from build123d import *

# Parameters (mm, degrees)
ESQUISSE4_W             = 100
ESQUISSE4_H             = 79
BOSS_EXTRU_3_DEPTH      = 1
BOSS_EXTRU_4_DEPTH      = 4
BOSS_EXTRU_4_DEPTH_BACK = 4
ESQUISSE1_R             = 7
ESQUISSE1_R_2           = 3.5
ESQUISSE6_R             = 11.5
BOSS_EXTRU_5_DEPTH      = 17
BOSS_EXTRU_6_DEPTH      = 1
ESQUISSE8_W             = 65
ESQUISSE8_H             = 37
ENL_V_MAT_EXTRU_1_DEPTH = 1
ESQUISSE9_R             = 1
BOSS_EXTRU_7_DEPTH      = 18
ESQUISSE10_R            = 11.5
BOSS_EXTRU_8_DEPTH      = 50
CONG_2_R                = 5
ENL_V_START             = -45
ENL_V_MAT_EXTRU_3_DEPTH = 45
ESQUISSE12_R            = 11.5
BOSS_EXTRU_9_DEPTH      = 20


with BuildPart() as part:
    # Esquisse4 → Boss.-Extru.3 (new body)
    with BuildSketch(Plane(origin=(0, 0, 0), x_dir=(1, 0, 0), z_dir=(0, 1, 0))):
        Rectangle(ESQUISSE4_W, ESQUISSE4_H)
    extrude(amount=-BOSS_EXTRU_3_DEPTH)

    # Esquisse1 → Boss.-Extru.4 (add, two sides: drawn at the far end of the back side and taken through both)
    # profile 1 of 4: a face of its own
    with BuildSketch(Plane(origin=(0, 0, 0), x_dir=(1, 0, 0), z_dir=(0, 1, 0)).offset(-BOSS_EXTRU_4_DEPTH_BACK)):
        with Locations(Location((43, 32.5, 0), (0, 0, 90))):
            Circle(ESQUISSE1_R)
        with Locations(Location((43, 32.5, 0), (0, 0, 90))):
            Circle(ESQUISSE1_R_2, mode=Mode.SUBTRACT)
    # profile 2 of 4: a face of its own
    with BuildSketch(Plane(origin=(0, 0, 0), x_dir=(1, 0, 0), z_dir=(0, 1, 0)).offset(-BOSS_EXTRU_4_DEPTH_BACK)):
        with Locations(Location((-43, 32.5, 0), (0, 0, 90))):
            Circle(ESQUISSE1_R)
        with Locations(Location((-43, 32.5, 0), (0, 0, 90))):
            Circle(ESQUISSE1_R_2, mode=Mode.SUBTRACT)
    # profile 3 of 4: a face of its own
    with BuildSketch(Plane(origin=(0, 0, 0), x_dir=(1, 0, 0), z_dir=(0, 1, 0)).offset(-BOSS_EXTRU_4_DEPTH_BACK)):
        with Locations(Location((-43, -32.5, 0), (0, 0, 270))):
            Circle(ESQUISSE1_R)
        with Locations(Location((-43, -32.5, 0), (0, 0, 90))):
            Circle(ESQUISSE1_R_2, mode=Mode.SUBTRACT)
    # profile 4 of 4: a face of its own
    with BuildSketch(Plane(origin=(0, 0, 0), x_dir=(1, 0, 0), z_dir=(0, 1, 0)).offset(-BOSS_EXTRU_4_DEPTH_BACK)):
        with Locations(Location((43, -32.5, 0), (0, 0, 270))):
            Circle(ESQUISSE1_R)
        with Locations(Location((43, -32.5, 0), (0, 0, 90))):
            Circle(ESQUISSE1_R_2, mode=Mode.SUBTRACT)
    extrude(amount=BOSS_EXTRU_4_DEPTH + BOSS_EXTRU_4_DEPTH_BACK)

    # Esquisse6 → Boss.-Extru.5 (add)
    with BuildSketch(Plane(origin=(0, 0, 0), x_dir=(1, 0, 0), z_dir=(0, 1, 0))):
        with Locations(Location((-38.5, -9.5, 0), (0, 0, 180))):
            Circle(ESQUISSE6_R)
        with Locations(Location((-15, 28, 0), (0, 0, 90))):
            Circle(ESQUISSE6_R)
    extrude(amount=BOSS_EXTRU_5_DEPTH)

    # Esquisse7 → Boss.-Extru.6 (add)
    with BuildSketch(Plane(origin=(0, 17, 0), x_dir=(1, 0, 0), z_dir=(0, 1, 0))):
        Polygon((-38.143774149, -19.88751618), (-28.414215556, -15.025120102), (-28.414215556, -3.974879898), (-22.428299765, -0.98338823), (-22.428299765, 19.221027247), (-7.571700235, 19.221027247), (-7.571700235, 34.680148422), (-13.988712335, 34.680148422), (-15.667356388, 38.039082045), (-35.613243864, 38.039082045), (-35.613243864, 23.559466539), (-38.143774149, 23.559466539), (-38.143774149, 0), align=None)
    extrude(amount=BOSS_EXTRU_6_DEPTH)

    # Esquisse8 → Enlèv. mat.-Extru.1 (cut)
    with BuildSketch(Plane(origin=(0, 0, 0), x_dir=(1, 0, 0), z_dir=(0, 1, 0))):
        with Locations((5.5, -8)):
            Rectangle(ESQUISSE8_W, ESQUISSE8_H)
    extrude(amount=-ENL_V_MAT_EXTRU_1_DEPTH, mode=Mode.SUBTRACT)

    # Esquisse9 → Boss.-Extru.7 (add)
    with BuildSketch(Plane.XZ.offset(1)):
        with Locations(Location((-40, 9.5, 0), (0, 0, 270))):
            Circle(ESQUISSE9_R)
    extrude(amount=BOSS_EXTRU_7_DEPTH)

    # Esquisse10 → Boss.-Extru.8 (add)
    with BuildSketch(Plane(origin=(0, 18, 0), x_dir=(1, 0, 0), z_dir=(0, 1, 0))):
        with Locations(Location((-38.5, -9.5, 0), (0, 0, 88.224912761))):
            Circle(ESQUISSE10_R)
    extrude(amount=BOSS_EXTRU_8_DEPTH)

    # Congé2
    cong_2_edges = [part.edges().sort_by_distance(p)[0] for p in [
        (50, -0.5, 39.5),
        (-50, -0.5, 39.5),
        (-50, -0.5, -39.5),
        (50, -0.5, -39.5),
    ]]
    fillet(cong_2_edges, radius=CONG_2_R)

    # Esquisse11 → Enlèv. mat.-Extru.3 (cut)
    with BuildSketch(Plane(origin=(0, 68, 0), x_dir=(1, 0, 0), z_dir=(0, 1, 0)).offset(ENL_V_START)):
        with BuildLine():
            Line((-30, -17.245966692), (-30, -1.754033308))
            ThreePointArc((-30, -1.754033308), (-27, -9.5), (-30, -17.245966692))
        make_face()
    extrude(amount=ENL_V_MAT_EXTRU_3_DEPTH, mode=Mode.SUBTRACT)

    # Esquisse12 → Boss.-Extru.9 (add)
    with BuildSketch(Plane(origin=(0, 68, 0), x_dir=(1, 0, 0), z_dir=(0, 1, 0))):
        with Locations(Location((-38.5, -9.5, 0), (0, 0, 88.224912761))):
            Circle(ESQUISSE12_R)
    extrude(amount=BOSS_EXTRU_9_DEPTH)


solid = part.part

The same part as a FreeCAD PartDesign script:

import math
import FreeCAD as App
import Part
import Sketcher

V = App.Vector


def edges_at(feature, points):
    """Names of the edges that pass closest to the given points."""
    edges = feature.Shape.Edges
    near = lambda p: min(range(len(edges)), key=lambda i: edges[i].distToShape(Part.Vertex(*p))[0])
    return sorted({f"Edge{near(p) + 1}" for p in points})

doc = App.newDocument("Part")
params = doc.addObject("Spreadsheet::Sheet", "Params")
for row, (alias, value) in enumerate([
    ("sketch1_width", "100 mm"),
    ("sketch1_height", "79 mm"),
    ("pad1_length", "1 mm"),
    ("sketch2_diameter", "14 mm"),
    ("sketch2_diameter2", "7 mm"),
    ("pad2_length", "4 mm"),
    ("pad2_length2", "4 mm"),
    ("sketch3_diameter", "23 mm"),
    ("pad3_length", "17 mm"),
    ("pad4_length", "1 mm"),
    ("sketch5_width", "65 mm"),
    ("sketch5_height", "37 mm"),
    ("pocket1_length", "1 mm"),
    ("sketch6_diameter", "2 mm"),
    ("pad5_length", "18 mm"),
    ("sketch7_diameter", "23 mm"),
    ("pad6_length", "50 mm"),
    ("fillet_radius", "5 mm"),
    ("sketch8_radius", "11.5 mm"),
    ("pocket2_length", "45 mm"),
    ("sketch9_diameter", "23 mm"),
    ("pad7_length", "20 mm"),
], start=1):
    params.set(f"A{row}", alias)
    params.set(f"B{row}", "=" + value)
    params.setAlias(f"B{row}", alias)

body = doc.addObject("PartDesign::Body", "Body")

sketch1 = body.newObject("Sketcher::SketchObject", "Sketch")
sketch1.AttachmentSupport = (doc.getObject("XZ_Plane"), [""])
sketch1.MapMode = "FlatFace"
sketch1.addGeometry([
    Part.LineSegment(V(-50, -40, 0), V(-50, 40, 0)),
    Part.LineSegment(V(-50, 40, 0), V(50, 40, 0)),
    Part.LineSegment(V(50, 40, 0), V(50, -40, 0)),
    Part.LineSegment(V(50, -40, 0), V(-50, -40, 0)),
], False)
sketch1.addConstraint([
    Sketcher.Constraint("Coincident", 0, 2, 1, 1),
    Sketcher.Constraint("Coincident", 1, 2, 2, 1),
    Sketcher.Constraint("Coincident", 2, 2, 3, 1),
    Sketcher.Constraint("Coincident", 3, 2, 0, 1),
    Sketcher.Constraint("Vertical", 0),
    Sketcher.Constraint("Horizontal", 1),
    Sketcher.Constraint("Vertical", 2),
    Sketcher.Constraint("Horizontal", 3),
    Sketcher.Constraint("Symmetric", 0, 2, 2, 2, -1, 1),
    Sketcher.Constraint("DistanceX", 1, 1, 1, 2, 100.0),
    Sketcher.Constraint("DistanceY", 0, 1, 0, 2, 79.0),
])
sketch1.setExpression("Constraints[9]", "Params.sketch1_width")
sketch1.setExpression("Constraints[10]", "Params.sketch1_height")
pad1 = body.newObject("PartDesign::Pad", "Pad")
pad1.Profile = sketch1
pad1.setExpression("Length", "Params.pad1_length")

sketch2 = body.newObject("Sketcher::SketchObject", "Sketch001")
sketch2.AttachmentSupport = (doc.getObject("XZ_Plane"), [""])
sketch2.MapMode = "FlatFace"
sketch2.addGeometry([
    Part.Circle(V(43, -32.5, 0), V(0, 0, 1), 7),
    Part.Circle(V(43, -32.5, 0), V(0, 0, 1), 3.5),
    Part.Circle(V(-43, -32.5, 0), V(0, 0, 1), 7),
    Part.Circle(V(-43, -32.5, 0), V(0, 0, 1), 3.5),
    Part.Circle(V(-43, 32.5, 0), V(0, 0, 1), 7),
    Part.Circle(V(-43, 32.5, 0), V(0, 0, 1), 3.5),
    Part.Circle(V(43, 32.5, 0), V(0, 0, 1), 7),
    Part.Circle(V(43, 32.5, 0), V(0, 0, 1), 3.5),
], False)
sketch2.addConstraint([
    Sketcher.Constraint("Coincident", 1, 3, 0, 3),
    Sketcher.Constraint("Coincident", 3, 3, 2, 3),
    Sketcher.Constraint("Coincident", 5, 3, 4, 3),
    Sketcher.Constraint("Coincident", 7, 3, 6, 3),
    Sketcher.Constraint("Equal", 0, 2),
    Sketcher.Constraint("Equal", 1, 3),
    Sketcher.Constraint("Equal", 2, 4),
    Sketcher.Constraint("Equal", 3, 5),
    Sketcher.Constraint("Equal", 4, 6),
    Sketcher.Constraint("Equal", 5, 7),
    Sketcher.Constraint("Symmetric", 0, 3, 4, 3, -1, 1),
    Sketcher.Constraint("Symmetric", 2, 3, 6, 3, -1, 1),
    Sketcher.Constraint("Symmetric", 0, 3, 2, 3, -2),
    Sketcher.Constraint("Diameter", 0, 14.0),
    Sketcher.Constraint("Diameter", 1, 7.0),
    Sketcher.Constraint("DistanceX", -1, 1, 0, 3, 43.0),
    Sketcher.Constraint("DistanceY", 2, 3, 4, 3, 65.0),
])
sketch2.setExpression("Constraints[13]", "Params.sketch2_diameter")
sketch2.setExpression("Constraints[14]", "Params.sketch2_diameter2")
pad2 = body.newObject("PartDesign::Pad", "Pad001")
pad2.Profile = sketch2
pad2.Type = "TwoLengths"
pad2.setExpression("Length", "Params.pad2_length")
pad2.setExpression("Length2", "Params.pad2_length2")
pad2.Reversed = True

sketch3 = body.newObject("Sketcher::SketchObject", "Sketch002")
sketch3.AttachmentSupport = (doc.getObject("XZ_Plane"), [""])
sketch3.MapMode = "FlatFace"
sketch3.addGeometry([
    Part.Circle(V(-38, 10, 0), V(0, 0, 1), 12),
    Part.Circle(V(-15, -28, 0), V(0, 0, 1), 12),
], False)
sketch3.addConstraint([
    Sketcher.Constraint("Equal", 0, 1),
    Sketcher.Constraint("Diameter", 0, 23.0),
    Sketcher.Constraint("DistanceX", 1, 3, -1, 1, 15.0),
    Sketcher.Constraint("DistanceY", 1, 3, -1, 1, 28.0),
    Sketcher.Constraint("DistanceX", 0, 3, -1, 1, 38.5),
    Sketcher.Constraint("DistanceY", -1, 1, 0, 3, 9.5),
])
sketch3.setExpression("Constraints[1]", "Params.sketch3_diameter")
pad3 = body.newObject("PartDesign::Pad", "Pad002")
pad3.Profile = sketch3
pad3.setExpression("Length", "Params.pad3_length")
pad3.Reversed = True

sketch4 = body.newObject("Sketcher::SketchObject", "Sketch003")
sketch4.AttachmentSupport = (doc.getObject("XZ_Plane"), [""])
sketch4.MapMode = "FlatFace"
sketch4.AttachmentOffset = App.Placement(V(0, 0, -17), App.Rotation())
sketch4.addGeometry([
    Part.LineSegment(V(-38.1, 19.9, 0), V(-28.4, 15, 0)),
    Part.LineSegment(V(-28.4, 15, 0), V(-28.4, 4, 0)),
    Part.LineSegment(V(-28.4, 4, 0), V(-22.4, 1, 0)),
    Part.LineSegment(V(-22.4, 1, 0), V(-22.4, -19.2, 0)),
    Part.LineSegment(V(-22.4, -19.2, 0), V(-7.6, -19.2, 0)),
    Part.LineSegment(V(-7.6, -19.2, 0), V(-7.6, -34.7, 0)),
    Part.LineSegment(V(-7.6, -34.7, 0), V(-14, -34.7, 0)),
    Part.LineSegment(V(-14, -34.7, 0), V(-15.7, -38, 0)),
    Part.LineSegment(V(-15.7, -38, 0), V(-35.6, -38, 0)),
    Part.LineSegment(V(-35.6, -38, 0), V(-35.6, -23.6, 0)),
    Part.LineSegment(V(-35.6, -23.6, 0), V(-38.1, -23.6, 0)),
    Part.LineSegment(V(-38.1, -23.6, 0), V(-38.1, 19.9, 0)),
], False)
sketch4.addConstraint([
    Sketcher.Constraint("Coincident", 0, 2, 1, 1),
    Sketcher.Constraint("Coincident", 1, 2, 2, 1),
    Sketcher.Constraint("Coincident", 2, 2, 3, 1),
    Sketcher.Constraint("Coincident", 3, 2, 4, 1),
    Sketcher.Constraint("Coincident", 4, 2, 5, 1),
    Sketcher.Constraint("Coincident", 5, 2, 6, 1),
    Sketcher.Constraint("Coincident", 6, 2, 7, 1),
    Sketcher.Constraint("Coincident", 7, 2, 8, 1),
    Sketcher.Constraint("Coincident", 8, 2, 9, 1),
    Sketcher.Constraint("Coincident", 9, 2, 10, 1),
    Sketcher.Constraint("Coincident", 10, 2, 11, 1),
    Sketcher.Constraint("Coincident", 11, 2, 0, 1),
    Sketcher.Constraint("Vertical", 1),
    Sketcher.Constraint("Vertical", 3),
    Sketcher.Constraint("Horizontal", 4),
    Sketcher.Constraint("Vertical", 5),
    Sketcher.Constraint("Horizontal", 6),
    Sketcher.Constraint("Horizontal", 8),
    Sketcher.Constraint("Vertical", 9),
    Sketcher.Constraint("Horizontal", 10),
    Sketcher.Constraint("Vertical", 11),
    Sketcher.Constraint("Parallel", 0, 2),
    Sketcher.Constraint("Perpendicular", 2, 7),
    Sketcher.Constraint("DistanceX", 4, 1, 4, 2, 14.8566),
    Sketcher.Constraint("Distance", 2, 6.691802),
    Sketcher.Constraint("DistanceX", 10, 2, 10, 1, 2.53053),
    Sketcher.Constraint("DistanceY", 1, 2, 1, 1, 11.05024),
    Sketcher.Constraint("DistanceY", 5, 2, 5, 1, 15.459121),
    Sketcher.Constraint("DistanceX", 2, 2, -1, 1, 22.4283),
    Sketcher.Constraint("Distance", 0, 10.876912),
    Sketcher.Constraint("DistanceX", 6, 2, 6, 1, 6.417012),
    Sketcher.Constraint("DistanceX", 8, 2, 8, 1, 19.945887),
    Sketcher.Constraint("DistanceY", 3, 2, 3, 1, 20.204415),
    Sketcher.Constraint("DistanceY", 9, 1, 9, 2, 14.479616),
    Sketcher.Constraint("DistanceY", 11, 1, 11, 2, 43.446983),
    Sketcher.Constraint("DistanceY", -1, 1, 0, 2, 15.02512),
])
pad4 = body.newObject("PartDesign::Pad", "Pad003")
pad4.Profile = sketch4
pad4.setExpression("Length", "Params.pad4_length")
pad4.Reversed = True

sketch5 = body.newObject("Sketcher::SketchObject", "Sketch004")
sketch5.AttachmentSupport = (doc.getObject("XZ_Plane"), [""])
sketch5.MapMode = "FlatFace"
sketch5.addGeometry([
    Part.LineSegment(V(-27, -10, 0), V(-27, 26, 0)),
    Part.LineSegment(V(-27, 26, 0), V(38, 26, 0)),
    Part.LineSegment(V(38, 26, 0), V(38, -10, 0)),
    Part.LineSegment(V(38, -10, 0), V(-27, -10, 0)),
], False)
sketch5.addConstraint([
    Sketcher.Constraint("Coincident", 0, 2, 1, 1),
    Sketcher.Constraint("Coincident", 1, 2, 2, 1),
    Sketcher.Constraint("Coincident", 2, 2, 3, 1),
    Sketcher.Constraint("Coincident", 3, 2, 0, 1),
    Sketcher.Constraint("Vertical", 0),
    Sketcher.Constraint("Horizontal", 1),
    Sketcher.Constraint("Vertical", 2),
    Sketcher.Constraint("Horizontal", 3),
    Sketcher.Constraint("DistanceX", 1, 1, 1, 2, 65.0),
    Sketcher.Constraint("DistanceY", 0, 1, 0, 2, 37.0),
    Sketcher.Constraint("DistanceX", 0, 2, -1, 1, 27.0),
    Sketcher.Constraint("DistanceY", -1, 1, 0, 2, 26.5),
])
sketch5.setExpression("Constraints[8]", "Params.sketch5_width")
sketch5.setExpression("Constraints[9]", "Params.sketch5_height")
pocket1 = body.newObject("PartDesign::Pocket", "Pocket")
pocket1.Profile = sketch5
pocket1.setExpression("Length", "Params.pocket1_length")
pocket1.Reversed = True

sketch6 = body.newObject("Sketcher::SketchObject", "Sketch005")
sketch6.AttachmentSupport = (doc.getObject("XZ_Plane"), [""])
sketch6.MapMode = "FlatFace"
sketch6.AttachmentOffset = App.Placement(V(0, 0, 1), App.Rotation())
sketch6.addGeometry(Part.Circle(V(-40, 9.5, 0), V(0, 0, 1), 1), False)
sketch6.addConstraint([
    Sketcher.Constraint("Diameter", 0, 2.0),
    Sketcher.Constraint("DistanceX", 0, 3, -1, 1, 40.0),
    Sketcher.Constraint("DistanceY", -1, 1, 0, 3, 9.5),
])
sketch6.setExpression("Constraints[0]", "Params.sketch6_diameter")
pad5 = body.newObject("PartDesign::Pad", "Pad004")
pad5.Profile = sketch6
pad5.setExpression("Length", "Params.pad5_length")

sketch7 = body.newObject("Sketcher::SketchObject", "Sketch006")
sketch7.AttachmentSupport = (doc.getObject("XZ_Plane"), [""])
sketch7.MapMode = "FlatFace"
sketch7.AttachmentOffset = App.Placement(V(0, 0, -18), App.Rotation())
sketch7.addGeometry(Part.Circle(V(-38, 10, 0), V(0, 0, 1), 12), False)
sketch7.addConstraint([
    Sketcher.Constraint("Diameter", 0, 23.0),
    Sketcher.Constraint("DistanceX", 0, 3, -1, 1, 38.5),
    Sketcher.Constraint("DistanceY", -1, 1, 0, 3, 9.5),
])
sketch7.setExpression("Constraints[0]", "Params.sketch7_diameter")
pad6 = body.newObject("PartDesign::Pad", "Pad005")
pad6.Profile = sketch7
pad6.setExpression("Length", "Params.pad6_length")
pad6.Reversed = True
doc.recompute()

fillet = body.newObject("PartDesign::Fillet", "Fillet")
fillet.Base = (pad6, edges_at(pad6, [
    (50, -0.5, 39.5),
    (-50, -0.5, 39.5),
    (-50, -0.5, -39.5),
    (50, -0.5, -39.5),
]))
fillet.setExpression("Radius", "Params.fillet_radius")

sketch8 = body.newObject("Sketcher::SketchObject", "Sketch007")
sketch8.AttachmentSupport = (doc.getObject("XZ_Plane"), [""])
sketch8.MapMode = "FlatFace"
sketch8.AttachmentOffset = App.Placement(V(0, 0, -23), App.Rotation())
sketch8.addGeometry([
    Part.LineSegment(V(-30, 2, 0), V(-30, 17, 0)),
    Part.ArcOfCircle(Part.Circle(V(-38, 10, 0), V(0, 0, 1), 11), math.radians(-42), math.radians(42)),
], False)
sketch8.addConstraint([
    Sketcher.Constraint("Coincident", 0, 1, 1, 1),
    Sketcher.Constraint("Coincident", 1, 2, 0, 2),
    Sketcher.Constraint("Vertical", 0),
    Sketcher.Constraint("Radius", 1, 11.5),
    Sketcher.Constraint("DistanceX", 0, 1, -1, 1, 30.0),
    Sketcher.Constraint("DistanceX", 1, 3, -1, 1, 38.5),
    Sketcher.Constraint("DistanceY", -1, 1, 1, 3, 9.5),
])
sketch8.setExpression("Constraints[3]", "Params.sketch8_radius")
pocket2 = body.newObject("PartDesign::Pocket", "Pocket001")
pocket2.Profile = sketch8
pocket2.setExpression("Length", "Params.pocket2_length")

sketch9 = body.newObject("Sketcher::SketchObject", "Sketch008")
sketch9.AttachmentSupport = (doc.getObject("XZ_Plane"), [""])
sketch9.MapMode = "FlatFace"
sketch9.AttachmentOffset = App.Placement(V(0, 0, -68), App.Rotation())
sketch9.addGeometry(Part.Circle(V(-38, 10, 0), V(0, 0, 1), 12), False)
sketch9.addConstraint([
    Sketcher.Constraint("Diameter", 0, 23.0),
    Sketcher.Constraint("DistanceX", 0, 3, -1, 1, 38.5),
    Sketcher.Constraint("DistanceY", -1, 1, 0, 3, 9.5),
])
sketch9.setExpression("Constraints[0]", "Params.sketch9_diameter")
pad7 = body.newObject("PartDesign::Pad", "Pad006")
pad7.Profile = sketch9
pad7.setExpression("Length", "Params.pad7_length")
pad7.Reversed = True

doc.recompute()
